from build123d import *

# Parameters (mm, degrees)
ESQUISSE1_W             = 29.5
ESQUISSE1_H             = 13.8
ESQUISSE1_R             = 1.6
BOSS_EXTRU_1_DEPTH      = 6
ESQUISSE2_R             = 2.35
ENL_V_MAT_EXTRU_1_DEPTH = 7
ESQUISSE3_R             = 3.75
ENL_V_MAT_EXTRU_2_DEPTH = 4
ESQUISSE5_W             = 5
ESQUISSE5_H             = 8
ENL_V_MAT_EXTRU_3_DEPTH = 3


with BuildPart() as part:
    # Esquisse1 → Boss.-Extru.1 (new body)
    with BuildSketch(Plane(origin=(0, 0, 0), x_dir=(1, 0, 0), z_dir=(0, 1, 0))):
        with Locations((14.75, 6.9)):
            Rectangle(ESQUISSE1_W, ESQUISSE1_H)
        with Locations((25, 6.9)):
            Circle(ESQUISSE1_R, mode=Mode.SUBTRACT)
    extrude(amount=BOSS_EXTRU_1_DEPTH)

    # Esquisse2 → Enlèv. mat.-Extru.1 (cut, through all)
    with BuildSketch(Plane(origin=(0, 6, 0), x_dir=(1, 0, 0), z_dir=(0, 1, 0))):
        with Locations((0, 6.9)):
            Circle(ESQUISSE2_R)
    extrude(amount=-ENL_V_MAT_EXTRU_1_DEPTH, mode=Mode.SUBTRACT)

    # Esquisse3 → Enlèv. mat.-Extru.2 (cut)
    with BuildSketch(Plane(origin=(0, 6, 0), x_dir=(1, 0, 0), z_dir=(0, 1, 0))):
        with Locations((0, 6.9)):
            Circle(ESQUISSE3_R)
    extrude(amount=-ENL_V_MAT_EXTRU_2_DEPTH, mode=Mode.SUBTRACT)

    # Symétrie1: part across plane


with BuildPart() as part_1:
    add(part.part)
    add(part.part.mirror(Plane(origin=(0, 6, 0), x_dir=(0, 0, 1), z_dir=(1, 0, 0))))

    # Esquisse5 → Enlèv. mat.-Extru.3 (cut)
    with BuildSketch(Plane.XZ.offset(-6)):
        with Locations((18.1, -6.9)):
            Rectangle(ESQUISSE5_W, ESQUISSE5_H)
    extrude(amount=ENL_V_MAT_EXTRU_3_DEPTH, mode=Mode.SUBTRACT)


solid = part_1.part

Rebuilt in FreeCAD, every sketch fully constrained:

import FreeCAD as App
import Part
import Sketcher
Q = App.Units.Quantity


def add_polygon(sketch, points):
    """Adds a closed chain of lines whose ends are joined by coincident constraints."""
    first, n = sketch.GeometryCount, len(points)
    for a, b in zip(points, points[1:] + points[:1]):
        sketch.addGeometry(Part.LineSegment(App.Vector(*a, 0), App.Vector(*b, 0)), False)
    for i in range(n):
        sketch.addConstraint(Sketcher.Constraint("Coincident", first + i, 2, first + (i + 1) % n, 1))

doc = App.newDocument("Part")
params = doc.addObject("Spreadsheet::Sheet", "Params")
for row, (alias, value) in enumerate([
    ("sketch1_diameter", "3.2 mm"),
    ("sketch1_width", "29.5 mm"),
    ("sketch1_height", "13.8 mm"),
    ("pad1_length", "6 mm"),
    ("sketch2_diameter", "4.7 mm"),
    ("sketch3_diameter", "7.5 mm"),
    ("pocket2_length", "4 mm"),
    ("sketch4_width", "5 mm"),
    ("sketch4_height", "8 mm"),
    ("pocket3_length", "3 mm"),
], start=1):
    params.set(f"A{row}", alias)
    params.set(f"B{row}", "=" + value)
    params.setAlias(f"B{row}", alias)

body = doc.addObject("PartDesign::Body", "Body")

sketch1 = body.newObject("Sketcher::SketchObject", "Sketch")
sketch1.AttachmentSupport = (doc.getObject("XZ_Plane"), [""])
sketch1.MapMode = "FlatFace"
add_polygon(sketch1, [(0, -13.8), (0, 0), (29.5, 0), (29.5, -13.8)])
sketch1.addGeometry(Part.Circle(App.Vector(25, -6.9, 0), App.Vector(0, 0, 1), 1.6), False)
sketch1.addConstraint(Sketcher.Constraint("Vertical", 0))
sketch1.addConstraint(Sketcher.Constraint("Horizontal", 1))
sketch1.addConstraint(Sketcher.Constraint("Vertical", 2))
sketch1.addConstraint(Sketcher.Constraint("Horizontal", 3))
sketch1.addConstraint(Sketcher.Constraint("Coincident", 0, 2, -1, 1))
sketch1.addConstraint(Sketcher.Constraint("Diameter", 4, Q("3.2 mm")))
sketch1.addConstraint(Sketcher.Constraint("DistanceX", 1, 1, 1, 2, Q("29.5 mm")))
sketch1.addConstraint(Sketcher.Constraint("DistanceY", 0, 1, 0, 2, Q("13.8 mm")))
sketch1.addConstraint(Sketcher.Constraint("DistanceX", -1, 1, 4, 3, Q("25 mm")))
sketch1.addConstraint(Sketcher.Constraint("DistanceY", 4, 3, -1, 1, Q("6.9 mm")))
sketch1.setExpression("Constraints[9]", "Params.sketch1_diameter")
sketch1.setExpression("Constraints[10]", "Params.sketch1_width")
sketch1.setExpression("Constraints[11]", "Params.sketch1_height")
pad1 = body.newObject("PartDesign::Pad", "Pad")
pad1.Profile = sketch1
pad1.setExpression("Length", "Params.pad1_length")
pad1.Reversed = True

sketch2 = body.newObject("Sketcher::SketchObject", "Sketch001")
sketch2.AttachmentSupport = (doc.getObject("XZ_Plane"), [""])
sketch2.MapMode = "FlatFace"
sketch2.AttachmentOffset = App.Placement(App.Vector(0, 0, -6), App.Rotation())
sketch2.addGeometry(Part.Circle(App.Vector(0, -6.9, 0), App.Vector(0, 0, 1), 2.4), False)
sketch2.addConstraint(Sketcher.Constraint("PointOnObject", 0, 3, -2))
sketch2.addConstraint(Sketcher.Constraint("Diameter", 0, Q("4.7 mm")))
sketch2.addConstraint(Sketcher.Constraint("DistanceY", 0, 3, -1, 1, Q("6.9 mm")))
sketch2.setExpression("Constraints[1]", "Params.sketch2_diameter")
pocket1 = body.newObject("PartDesign::Pocket", "Pocket")
pocket1.Profile = sketch2
pocket1.Type = "ThroughAll"
pocket1.Reversed = True

sketch3 = body.newObject("Sketcher::SketchObject", "Sketch002")
sketch3.AttachmentSupport = (doc.getObject("XZ_Plane"), [""])
sketch3.MapMode = "FlatFace"
sketch3.AttachmentOffset = App.Placement(App.Vector(0, 0, -6), App.Rotation())
sketch3.addGeometry(Part.Circle(App.Vector(0, -6.9, 0), App.Vector(0, 0, 1), 3.8), False)
sketch3.addConstraint(Sketcher.Constraint("PointOnObject", 0, 3, -2))
sketch3.addConstraint(Sketcher.Constraint("Diameter", 0, Q("7.5 mm")))
sketch3.addConstraint(Sketcher.Constraint("DistanceY", 0, 3, -1, 1, Q("6.9 mm")))
sketch3.setExpression("Constraints[1]", "Params.sketch3_diameter")
pocket2 = body.newObject("PartDesign::Pocket", "Pocket001")
pocket2.Profile = sketch3
pocket2.setExpression("Length", "Params.pocket2_length")
pocket2.Reversed = True
body2 = doc.addObject("PartDesign::Body", "Body001")
doc.recompute()

body2.BaseFeature = body
doc.recompute()

mirroring = doc.addObject("Part::Mirroring", "Mirroring")
mirroring.Source = body
mirroring.Base = App.Vector(0, 6, 0)
mirroring.Normal = App.Vector(1, 0, 0)
body3 = doc.addObject("PartDesign::Body", "Body002")
body3.BaseFeature = mirroring
boolean = body2.newObject("PartDesign::Boolean", "Boolean")
boolean.Type = "Fuse"
boolean.addObjects([body3])
doc.recompute()

sketch4 = body2.newObject("Sketcher::SketchObject", "Sketch003")
sketch4.AttachmentSupport = (doc.getObject("XZ_Plane001"), [""])
sketch4.MapMode = "FlatFace"
sketch4.AttachmentOffset = App.Placement(App.Vector(0, 0, -6), App.Rotation())
add_polygon(sketch4, [(16, -3), (16, -11), (21, -11), (21, -3)])
sketch4.addConstraint(Sketcher.Constraint("Vertical", 0))
sketch4.addConstraint(Sketcher.Constraint("Horizontal", 1))
sketch4.addConstraint(Sketcher.Constraint("Vertical", 2))
sketch4.addConstraint(Sketcher.Constraint("Horizontal", 3))
sketch4.addConstraint(Sketcher.Constraint("DistanceX", 1, 1, 1, 2, Q("5 mm")))
sketch4.addConstraint(Sketcher.Constraint("DistanceY", 0, 2, 0, 1, Q("8 mm")))
sketch4.addConstraint(Sketcher.Constraint("DistanceX", -1, 1, 0, 2, Q("15.6 mm")))
sketch4.addConstraint(Sketcher.Constraint("DistanceY", 0, 2, -1, 1, Q("10.9 mm")))
sketch4.setExpression("Constraints[8]", "Params.sketch4_width")
sketch4.setExpression("Constraints[9]", "Params.sketch4_height")
pocket3 = body2.newObject("PartDesign::Pocket", "Pocket002")
pocket3.Profile = sketch4
pocket3.setExpression("Length", "Params.pocket3_length")
pocket3.Reversed = True
mirroring.Visibility = False

doc.recompute()
